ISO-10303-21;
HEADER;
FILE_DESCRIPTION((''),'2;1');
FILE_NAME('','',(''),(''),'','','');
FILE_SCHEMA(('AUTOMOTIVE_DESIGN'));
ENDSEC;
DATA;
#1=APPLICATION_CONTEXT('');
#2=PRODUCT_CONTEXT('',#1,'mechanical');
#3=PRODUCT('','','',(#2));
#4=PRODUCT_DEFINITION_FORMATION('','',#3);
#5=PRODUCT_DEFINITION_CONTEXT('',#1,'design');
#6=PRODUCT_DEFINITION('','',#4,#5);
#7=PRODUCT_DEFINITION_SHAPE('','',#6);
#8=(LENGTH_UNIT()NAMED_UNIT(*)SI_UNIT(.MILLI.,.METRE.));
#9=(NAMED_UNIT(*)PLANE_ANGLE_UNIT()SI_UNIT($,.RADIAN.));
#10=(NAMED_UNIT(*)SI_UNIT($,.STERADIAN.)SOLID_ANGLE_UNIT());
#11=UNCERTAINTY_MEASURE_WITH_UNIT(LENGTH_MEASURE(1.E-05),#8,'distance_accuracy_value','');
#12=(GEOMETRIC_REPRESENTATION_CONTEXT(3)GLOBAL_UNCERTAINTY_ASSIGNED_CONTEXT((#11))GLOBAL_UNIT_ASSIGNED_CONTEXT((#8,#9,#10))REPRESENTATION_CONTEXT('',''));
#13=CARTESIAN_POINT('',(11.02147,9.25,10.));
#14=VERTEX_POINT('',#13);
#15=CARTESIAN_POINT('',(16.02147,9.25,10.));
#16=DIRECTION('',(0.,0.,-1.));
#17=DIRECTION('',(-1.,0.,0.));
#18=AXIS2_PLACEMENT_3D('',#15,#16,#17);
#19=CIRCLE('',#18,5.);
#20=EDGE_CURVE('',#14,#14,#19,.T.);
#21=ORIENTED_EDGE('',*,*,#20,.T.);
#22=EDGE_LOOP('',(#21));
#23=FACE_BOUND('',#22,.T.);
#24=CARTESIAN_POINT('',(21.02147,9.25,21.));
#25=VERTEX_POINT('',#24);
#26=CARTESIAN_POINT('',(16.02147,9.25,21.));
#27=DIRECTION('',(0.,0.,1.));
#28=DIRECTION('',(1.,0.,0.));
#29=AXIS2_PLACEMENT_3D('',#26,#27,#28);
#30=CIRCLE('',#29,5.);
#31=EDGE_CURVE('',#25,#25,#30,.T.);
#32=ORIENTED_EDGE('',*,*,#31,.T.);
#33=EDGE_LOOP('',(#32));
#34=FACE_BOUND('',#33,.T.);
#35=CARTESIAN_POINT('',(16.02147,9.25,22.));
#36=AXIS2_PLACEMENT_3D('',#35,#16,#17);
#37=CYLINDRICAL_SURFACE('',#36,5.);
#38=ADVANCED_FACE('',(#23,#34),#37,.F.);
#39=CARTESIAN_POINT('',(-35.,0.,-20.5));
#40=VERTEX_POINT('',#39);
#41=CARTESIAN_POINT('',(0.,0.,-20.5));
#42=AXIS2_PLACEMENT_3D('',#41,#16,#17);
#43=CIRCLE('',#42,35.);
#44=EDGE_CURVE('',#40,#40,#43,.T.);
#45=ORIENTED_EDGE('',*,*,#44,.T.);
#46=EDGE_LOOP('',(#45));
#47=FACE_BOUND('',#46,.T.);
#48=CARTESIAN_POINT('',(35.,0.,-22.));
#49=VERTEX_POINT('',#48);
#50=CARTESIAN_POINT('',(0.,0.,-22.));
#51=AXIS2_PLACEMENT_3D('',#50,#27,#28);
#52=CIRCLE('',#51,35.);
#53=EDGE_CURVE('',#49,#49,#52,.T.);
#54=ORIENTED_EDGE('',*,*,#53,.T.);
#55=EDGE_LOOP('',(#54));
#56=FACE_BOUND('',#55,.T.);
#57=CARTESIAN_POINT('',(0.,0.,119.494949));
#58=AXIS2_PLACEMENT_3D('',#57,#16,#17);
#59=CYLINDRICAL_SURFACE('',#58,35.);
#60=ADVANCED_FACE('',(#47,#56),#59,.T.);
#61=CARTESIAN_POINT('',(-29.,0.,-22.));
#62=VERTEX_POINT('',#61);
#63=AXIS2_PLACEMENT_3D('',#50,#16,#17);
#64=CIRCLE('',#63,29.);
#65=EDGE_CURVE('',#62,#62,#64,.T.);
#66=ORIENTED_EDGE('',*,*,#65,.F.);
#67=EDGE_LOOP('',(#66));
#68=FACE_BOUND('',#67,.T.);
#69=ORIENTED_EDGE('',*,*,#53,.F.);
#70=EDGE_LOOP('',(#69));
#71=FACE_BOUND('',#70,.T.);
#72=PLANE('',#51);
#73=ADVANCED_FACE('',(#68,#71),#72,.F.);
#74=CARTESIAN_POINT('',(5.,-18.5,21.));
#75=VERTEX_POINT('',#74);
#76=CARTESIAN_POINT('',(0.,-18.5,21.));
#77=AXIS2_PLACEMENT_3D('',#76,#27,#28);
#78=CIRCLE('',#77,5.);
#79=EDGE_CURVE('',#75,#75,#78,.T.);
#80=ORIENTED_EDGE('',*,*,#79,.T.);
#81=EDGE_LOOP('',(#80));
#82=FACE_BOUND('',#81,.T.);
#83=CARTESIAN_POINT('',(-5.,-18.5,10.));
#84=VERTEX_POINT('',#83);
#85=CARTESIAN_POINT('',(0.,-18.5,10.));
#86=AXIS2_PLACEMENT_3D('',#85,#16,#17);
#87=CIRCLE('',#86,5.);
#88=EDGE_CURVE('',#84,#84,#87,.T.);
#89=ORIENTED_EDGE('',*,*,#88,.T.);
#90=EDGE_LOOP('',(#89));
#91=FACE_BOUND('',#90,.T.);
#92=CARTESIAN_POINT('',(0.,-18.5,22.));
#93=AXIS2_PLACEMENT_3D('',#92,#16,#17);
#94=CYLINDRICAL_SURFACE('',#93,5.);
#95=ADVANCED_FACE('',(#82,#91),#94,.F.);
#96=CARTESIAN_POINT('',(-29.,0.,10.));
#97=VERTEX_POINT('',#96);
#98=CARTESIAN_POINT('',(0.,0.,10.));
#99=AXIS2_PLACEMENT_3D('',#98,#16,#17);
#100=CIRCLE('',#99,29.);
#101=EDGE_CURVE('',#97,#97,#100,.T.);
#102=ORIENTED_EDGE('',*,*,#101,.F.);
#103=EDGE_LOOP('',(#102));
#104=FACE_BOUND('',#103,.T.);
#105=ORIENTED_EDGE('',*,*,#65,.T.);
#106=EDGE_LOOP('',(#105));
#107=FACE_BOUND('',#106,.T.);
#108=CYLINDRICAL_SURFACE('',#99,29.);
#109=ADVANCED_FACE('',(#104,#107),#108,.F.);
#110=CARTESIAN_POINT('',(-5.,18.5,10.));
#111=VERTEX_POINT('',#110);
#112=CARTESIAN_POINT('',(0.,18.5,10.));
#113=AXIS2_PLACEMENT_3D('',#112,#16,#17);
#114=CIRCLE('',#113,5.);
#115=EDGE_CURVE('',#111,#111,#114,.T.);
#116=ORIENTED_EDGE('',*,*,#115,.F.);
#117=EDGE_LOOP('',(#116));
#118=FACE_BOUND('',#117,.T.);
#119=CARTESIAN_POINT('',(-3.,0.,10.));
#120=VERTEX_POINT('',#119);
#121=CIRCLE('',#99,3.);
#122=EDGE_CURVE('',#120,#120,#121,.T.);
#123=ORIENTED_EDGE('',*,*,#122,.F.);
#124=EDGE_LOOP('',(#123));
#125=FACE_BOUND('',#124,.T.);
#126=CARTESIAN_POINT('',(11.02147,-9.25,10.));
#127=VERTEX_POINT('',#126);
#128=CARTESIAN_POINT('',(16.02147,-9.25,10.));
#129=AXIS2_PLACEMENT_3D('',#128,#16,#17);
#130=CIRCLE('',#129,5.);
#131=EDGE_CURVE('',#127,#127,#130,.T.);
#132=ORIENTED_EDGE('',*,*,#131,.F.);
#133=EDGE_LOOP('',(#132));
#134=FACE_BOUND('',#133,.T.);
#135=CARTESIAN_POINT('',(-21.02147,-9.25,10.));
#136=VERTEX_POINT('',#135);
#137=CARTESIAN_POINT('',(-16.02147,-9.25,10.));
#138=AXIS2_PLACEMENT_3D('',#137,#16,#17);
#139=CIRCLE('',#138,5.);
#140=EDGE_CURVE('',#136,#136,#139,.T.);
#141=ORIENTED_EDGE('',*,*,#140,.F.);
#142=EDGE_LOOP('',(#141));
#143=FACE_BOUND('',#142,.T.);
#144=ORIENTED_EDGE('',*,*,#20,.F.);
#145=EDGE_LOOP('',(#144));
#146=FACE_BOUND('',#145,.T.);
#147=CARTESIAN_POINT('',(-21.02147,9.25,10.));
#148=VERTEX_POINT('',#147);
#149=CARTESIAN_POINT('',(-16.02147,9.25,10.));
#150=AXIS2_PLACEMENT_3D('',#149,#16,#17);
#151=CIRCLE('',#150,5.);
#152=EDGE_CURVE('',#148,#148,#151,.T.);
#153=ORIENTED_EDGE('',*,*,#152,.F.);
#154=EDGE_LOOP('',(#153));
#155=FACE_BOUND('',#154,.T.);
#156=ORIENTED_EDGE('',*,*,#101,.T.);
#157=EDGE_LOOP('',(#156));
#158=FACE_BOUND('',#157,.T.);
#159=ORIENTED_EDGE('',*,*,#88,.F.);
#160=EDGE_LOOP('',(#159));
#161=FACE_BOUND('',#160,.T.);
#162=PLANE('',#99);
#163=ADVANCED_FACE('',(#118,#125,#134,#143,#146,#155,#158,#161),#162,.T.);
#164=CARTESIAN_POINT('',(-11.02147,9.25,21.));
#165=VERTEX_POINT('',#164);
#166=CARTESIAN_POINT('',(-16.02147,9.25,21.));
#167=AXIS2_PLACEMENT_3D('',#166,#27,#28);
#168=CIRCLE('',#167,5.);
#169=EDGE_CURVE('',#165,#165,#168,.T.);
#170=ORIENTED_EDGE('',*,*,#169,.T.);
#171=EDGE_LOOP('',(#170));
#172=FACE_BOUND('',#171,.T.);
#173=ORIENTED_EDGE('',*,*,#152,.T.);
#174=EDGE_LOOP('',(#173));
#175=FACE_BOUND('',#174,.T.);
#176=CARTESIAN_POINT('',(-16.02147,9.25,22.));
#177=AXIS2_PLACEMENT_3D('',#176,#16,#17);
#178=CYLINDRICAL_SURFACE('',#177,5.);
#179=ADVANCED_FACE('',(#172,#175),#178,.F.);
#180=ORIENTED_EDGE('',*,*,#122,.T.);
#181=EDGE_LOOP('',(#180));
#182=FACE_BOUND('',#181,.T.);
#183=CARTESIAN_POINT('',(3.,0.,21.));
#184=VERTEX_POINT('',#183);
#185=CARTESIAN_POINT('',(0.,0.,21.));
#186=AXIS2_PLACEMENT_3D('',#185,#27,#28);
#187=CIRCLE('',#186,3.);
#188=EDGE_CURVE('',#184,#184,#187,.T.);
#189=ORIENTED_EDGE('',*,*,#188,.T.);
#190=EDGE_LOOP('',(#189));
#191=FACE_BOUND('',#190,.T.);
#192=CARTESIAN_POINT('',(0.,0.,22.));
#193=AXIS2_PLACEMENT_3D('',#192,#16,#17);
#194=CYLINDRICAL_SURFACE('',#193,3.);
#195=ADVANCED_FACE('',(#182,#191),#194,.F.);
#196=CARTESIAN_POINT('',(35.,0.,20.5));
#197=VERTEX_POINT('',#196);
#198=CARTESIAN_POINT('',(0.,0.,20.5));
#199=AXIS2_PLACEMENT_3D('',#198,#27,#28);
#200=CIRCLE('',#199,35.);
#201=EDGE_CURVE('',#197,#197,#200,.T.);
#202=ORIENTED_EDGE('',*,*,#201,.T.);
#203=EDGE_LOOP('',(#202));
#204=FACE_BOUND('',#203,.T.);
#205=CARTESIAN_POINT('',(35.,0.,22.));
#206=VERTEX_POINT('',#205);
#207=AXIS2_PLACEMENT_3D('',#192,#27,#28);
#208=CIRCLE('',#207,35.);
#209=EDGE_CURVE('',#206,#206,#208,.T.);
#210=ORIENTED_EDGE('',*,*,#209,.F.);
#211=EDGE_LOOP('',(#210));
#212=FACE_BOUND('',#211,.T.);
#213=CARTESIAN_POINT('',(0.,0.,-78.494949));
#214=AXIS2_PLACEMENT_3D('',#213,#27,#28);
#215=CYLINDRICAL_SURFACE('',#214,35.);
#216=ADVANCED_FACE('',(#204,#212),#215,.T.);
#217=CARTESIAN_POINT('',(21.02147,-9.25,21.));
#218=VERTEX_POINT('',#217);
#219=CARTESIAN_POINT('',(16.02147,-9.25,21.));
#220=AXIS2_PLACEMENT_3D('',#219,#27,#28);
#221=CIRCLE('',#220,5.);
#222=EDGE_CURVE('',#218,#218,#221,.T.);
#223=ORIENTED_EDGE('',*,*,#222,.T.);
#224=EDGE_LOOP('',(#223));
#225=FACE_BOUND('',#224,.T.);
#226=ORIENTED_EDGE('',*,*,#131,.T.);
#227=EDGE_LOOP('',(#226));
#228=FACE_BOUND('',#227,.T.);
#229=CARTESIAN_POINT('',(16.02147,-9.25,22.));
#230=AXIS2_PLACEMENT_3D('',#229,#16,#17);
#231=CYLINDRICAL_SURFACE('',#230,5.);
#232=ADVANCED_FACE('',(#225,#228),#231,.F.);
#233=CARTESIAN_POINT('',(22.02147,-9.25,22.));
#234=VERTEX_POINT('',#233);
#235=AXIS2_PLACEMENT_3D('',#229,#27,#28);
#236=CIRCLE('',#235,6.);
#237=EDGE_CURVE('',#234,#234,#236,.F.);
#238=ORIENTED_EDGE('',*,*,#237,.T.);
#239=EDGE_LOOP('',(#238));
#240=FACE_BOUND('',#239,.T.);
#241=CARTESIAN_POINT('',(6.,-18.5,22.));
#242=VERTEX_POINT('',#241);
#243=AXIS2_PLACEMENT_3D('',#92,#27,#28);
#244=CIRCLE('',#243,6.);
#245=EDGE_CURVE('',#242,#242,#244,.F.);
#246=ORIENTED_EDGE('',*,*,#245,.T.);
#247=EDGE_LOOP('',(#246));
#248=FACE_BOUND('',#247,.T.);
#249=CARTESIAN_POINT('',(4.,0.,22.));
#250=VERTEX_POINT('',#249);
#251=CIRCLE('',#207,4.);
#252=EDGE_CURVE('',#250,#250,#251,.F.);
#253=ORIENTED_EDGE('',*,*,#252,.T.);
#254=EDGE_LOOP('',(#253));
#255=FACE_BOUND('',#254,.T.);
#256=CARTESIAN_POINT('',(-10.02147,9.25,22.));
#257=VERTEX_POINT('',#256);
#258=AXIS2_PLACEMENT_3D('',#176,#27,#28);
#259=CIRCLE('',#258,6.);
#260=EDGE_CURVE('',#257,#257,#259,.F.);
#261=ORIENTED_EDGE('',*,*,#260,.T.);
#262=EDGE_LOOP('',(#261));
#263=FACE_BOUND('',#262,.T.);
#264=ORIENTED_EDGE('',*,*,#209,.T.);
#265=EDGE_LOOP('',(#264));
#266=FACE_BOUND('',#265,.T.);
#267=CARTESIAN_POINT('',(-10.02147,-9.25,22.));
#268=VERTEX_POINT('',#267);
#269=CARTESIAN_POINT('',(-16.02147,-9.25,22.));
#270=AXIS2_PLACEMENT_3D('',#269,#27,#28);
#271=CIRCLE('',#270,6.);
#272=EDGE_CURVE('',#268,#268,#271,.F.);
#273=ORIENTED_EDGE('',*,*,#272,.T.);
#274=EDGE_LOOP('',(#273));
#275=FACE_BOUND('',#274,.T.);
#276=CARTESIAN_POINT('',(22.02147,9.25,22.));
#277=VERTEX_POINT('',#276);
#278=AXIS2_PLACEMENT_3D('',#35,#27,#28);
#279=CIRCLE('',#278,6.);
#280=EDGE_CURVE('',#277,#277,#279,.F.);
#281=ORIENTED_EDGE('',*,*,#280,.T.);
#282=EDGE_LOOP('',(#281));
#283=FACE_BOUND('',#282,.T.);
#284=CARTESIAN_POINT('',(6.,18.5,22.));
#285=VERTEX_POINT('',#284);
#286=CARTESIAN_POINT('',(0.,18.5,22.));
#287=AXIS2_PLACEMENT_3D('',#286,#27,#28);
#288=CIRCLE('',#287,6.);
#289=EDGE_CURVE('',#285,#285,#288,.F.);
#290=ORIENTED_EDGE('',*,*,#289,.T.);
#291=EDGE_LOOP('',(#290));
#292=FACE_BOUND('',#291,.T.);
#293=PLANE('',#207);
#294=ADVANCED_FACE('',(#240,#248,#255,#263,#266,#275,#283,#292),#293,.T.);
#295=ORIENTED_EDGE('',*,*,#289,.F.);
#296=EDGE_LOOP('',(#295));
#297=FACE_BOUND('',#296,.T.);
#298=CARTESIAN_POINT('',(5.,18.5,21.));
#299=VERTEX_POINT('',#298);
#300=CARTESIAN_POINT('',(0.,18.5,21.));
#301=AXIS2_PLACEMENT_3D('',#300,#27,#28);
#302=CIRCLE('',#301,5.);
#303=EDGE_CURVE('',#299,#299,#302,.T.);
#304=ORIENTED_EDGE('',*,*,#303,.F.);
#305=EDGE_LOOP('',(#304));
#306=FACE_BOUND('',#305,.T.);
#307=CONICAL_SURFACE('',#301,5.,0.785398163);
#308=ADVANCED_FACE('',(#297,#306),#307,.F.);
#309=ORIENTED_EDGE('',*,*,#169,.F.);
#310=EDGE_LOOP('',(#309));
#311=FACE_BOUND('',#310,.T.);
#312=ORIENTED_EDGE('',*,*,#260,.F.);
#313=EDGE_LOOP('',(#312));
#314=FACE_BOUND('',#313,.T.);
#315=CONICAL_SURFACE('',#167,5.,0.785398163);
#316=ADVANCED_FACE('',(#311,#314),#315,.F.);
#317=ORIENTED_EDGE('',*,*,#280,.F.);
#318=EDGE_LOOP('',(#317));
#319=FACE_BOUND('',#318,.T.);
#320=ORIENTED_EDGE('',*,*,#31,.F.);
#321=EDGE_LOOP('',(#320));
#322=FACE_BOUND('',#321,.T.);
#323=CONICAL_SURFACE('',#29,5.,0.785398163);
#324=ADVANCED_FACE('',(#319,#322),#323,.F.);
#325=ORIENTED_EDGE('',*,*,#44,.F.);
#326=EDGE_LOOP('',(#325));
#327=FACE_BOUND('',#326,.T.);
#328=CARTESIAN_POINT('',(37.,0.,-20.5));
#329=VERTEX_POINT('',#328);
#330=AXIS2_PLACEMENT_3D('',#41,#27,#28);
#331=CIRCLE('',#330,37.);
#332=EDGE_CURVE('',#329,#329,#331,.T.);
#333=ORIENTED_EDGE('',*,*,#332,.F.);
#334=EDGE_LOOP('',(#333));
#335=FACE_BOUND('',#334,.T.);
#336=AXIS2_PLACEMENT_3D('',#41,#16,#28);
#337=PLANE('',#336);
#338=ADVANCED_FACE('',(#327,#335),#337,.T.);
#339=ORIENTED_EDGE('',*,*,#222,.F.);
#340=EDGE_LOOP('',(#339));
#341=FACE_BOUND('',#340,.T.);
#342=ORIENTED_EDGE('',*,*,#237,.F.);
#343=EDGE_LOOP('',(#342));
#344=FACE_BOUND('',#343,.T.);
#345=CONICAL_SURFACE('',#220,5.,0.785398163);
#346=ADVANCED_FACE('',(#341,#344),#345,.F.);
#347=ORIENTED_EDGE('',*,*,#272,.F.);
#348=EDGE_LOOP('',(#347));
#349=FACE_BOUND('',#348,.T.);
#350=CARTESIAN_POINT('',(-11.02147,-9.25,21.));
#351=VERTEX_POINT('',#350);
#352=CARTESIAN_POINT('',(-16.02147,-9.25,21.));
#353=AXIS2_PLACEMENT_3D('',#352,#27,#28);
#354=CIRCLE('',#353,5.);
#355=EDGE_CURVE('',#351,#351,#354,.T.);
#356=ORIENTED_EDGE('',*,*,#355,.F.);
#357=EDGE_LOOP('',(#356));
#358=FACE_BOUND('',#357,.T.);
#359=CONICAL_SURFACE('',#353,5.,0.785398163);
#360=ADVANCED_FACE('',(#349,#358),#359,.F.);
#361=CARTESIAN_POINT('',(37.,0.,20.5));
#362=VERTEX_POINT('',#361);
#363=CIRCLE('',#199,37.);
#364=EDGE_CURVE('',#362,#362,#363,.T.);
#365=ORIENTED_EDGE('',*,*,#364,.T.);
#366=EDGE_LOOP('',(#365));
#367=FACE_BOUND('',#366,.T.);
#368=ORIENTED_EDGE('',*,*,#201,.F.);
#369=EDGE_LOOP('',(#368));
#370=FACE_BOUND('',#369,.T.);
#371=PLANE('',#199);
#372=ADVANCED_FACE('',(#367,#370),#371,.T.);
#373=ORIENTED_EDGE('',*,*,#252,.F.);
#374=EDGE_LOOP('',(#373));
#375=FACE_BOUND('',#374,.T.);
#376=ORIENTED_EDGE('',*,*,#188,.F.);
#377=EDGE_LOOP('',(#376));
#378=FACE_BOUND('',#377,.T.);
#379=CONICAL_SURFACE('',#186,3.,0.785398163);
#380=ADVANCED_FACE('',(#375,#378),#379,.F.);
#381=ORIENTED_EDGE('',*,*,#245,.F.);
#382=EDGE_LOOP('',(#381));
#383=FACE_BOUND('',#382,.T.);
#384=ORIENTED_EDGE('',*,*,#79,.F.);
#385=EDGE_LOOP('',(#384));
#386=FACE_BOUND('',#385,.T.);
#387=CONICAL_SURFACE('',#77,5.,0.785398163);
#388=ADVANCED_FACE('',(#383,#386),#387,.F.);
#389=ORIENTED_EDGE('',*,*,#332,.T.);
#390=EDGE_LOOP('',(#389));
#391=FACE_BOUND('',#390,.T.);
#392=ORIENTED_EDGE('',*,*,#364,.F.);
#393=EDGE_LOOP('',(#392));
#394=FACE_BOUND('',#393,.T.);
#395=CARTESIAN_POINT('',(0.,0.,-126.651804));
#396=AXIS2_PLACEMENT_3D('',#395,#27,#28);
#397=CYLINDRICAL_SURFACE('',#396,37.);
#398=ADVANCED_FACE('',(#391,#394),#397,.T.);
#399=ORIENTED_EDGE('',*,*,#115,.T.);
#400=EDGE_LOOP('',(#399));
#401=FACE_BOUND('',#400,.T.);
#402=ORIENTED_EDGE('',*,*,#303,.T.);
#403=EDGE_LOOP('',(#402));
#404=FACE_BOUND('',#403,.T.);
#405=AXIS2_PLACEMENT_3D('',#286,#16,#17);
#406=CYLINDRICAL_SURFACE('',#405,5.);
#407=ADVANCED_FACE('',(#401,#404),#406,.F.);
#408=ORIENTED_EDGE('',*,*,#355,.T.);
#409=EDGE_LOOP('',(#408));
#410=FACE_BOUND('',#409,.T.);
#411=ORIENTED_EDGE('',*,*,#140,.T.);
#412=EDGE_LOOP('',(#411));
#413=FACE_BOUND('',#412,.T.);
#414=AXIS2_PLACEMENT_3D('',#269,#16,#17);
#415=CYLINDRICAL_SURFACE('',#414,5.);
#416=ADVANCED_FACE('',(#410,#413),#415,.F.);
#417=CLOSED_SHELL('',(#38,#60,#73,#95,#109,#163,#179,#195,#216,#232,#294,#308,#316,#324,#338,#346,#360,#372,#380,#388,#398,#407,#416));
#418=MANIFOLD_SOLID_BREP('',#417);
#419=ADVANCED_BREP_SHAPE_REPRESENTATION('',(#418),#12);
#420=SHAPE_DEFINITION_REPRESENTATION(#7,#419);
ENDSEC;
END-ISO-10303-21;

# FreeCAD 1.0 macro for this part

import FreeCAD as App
import Part
import Sketcher

V = App.Vector
Q = App.Units.Quantity


def edges_at(feature, points):
    """Names of the edges that pass closest to the given points."""
    edges = feature.Shape.Edges
    near = lambda p: min(range(len(edges)), key=lambda i: edges[i].distToShape(Part.Vertex(*p))[0])
    return sorted({f"Edge{near(p) + 1}" for p in points})

doc = App.newDocument("Part")
body = doc.addObject("PartDesign::Body", "Body")

sketch1 = body.newObject("Sketcher::SketchObject", "Sketch")
sketch1.AttachmentSupport = (doc.getObject("XY_Plane"), [""])
sketch1.MapMode = "FlatFace"
sketch1.addGeometry([
    Part.Circle(V(0, 0, 0), V(0, 0, 1), 34),
    Part.Circle(V(-16, -9.2, 0), V(0, 0, 1), 5),
    Part.Circle(V(0, -18.5, 0), V(0, 0, 1), 5),
    Part.Circle(V(16, -9.2, 0), V(0, 0, 1), 5),
    Part.Circle(V(-16, 9.2, 0), V(0, 0, 1), 5),
    Part.Circle(V(0, 0, 0), V(0, 0, 1), 3),
    Part.Circle(V(16, 9.2, 0), V(0, 0, 1), 5),
    Part.Circle(V(0, 18.5, 0), V(0, 0, 1), 5),
], False)
sketch1.addConstraint([
    Sketcher.Constraint("Coincident", 0, 3, -1, 1),
    Sketcher.Constraint("Coincident", 5, 3, -1, 1),
    Sketcher.Constraint("Equal", 1, 2),
    Sketcher.Constraint("Equal", 2, 3),
    Sketcher.Constraint("Equal", 3, 4),
    Sketcher.Constraint("Equal", 4, 6),
    Sketcher.Constraint("Equal", 6, 7),
    Sketcher.Constraint("Symmetric", 3, 3, 4, 3, -1, 1),
    Sketcher.Constraint("Symmetric", 1, 3, 6, 3, -1, 1),
    Sketcher.Constraint("Symmetric", 2, 3, 7, 3, -1, 1),
    Sketcher.Constraint("Symmetric", 1, 3, 3, 3, -2),
    Sketcher.Constraint("PointOnObject", 2, 3, -2),
    Sketcher.Constraint("Diameter", 0, Q("68 mm")),
    Sketcher.Constraint("Diameter", 1, Q("10 mm")),
    Sketcher.Constraint("Diameter", 5, Q("6 mm")),
    Sketcher.Constraint("DistanceY", 2, 3, -1, 1, Q("18.5 mm")),
    Sketcher.Constraint("DistanceY", 1, 3, 4, 3, Q("18.5 mm")),
    Sketcher.Constraint("DistanceX", 1, 3, -1, 1, Q("16.02147 mm")),
])
pad1 = body.newObject("PartDesign::Pad", "Pad")
pad1.Profile = sketch1
pad1.Length = 44
pad1.Midplane = True

sketch2 = body.newObject("Sketcher::SketchObject", "Sketch001")
sketch2.AttachmentSupport = (doc.getObject("XY_Plane"), [""])
sketch2.MapMode = "FlatFace"
sketch2.AttachmentOffset = App.Placement(V(0, 0, 22), App.Rotation())
sketch2.addGeometry([
    Part.Circle(V(0, 0, 0), V(0, 0, 1), 37),
    Part.Circle(V(0, 0, 0), V(0, 0, 1), 34),
], False)
sketch2.addConstraint([
    Sketcher.Constraint("Coincident", 0, 3, -1, 1),
    Sketcher.Constraint("Coincident", 1, 3, -1, 1),
    Sketcher.Constraint("Diameter", 0, Q("74 mm")),
    Sketcher.Constraint("Diameter", 1, Q("68 mm")),
])
pad2 = body.newObject("PartDesign::Pad", "Pad001")
pad2.Profile = sketch2
pad2.Length = 44
pad2.Reversed = True

sketch3 = body.newObject("Sketcher::SketchObject", "Sketch002")
sketch3.AttachmentSupport = (doc.getObject("XY_Plane"), [""])
sketch3.MapMode = "FlatFace"
sketch3.AttachmentOffset = App.Placement(V(0, 0, 22), App.Rotation())
sketch3.addGeometry([
    Part.Circle(V(0, 0, 0), V(0, 0, 1), 37),
    Part.Circle(V(0, 0, 0), V(0, 0, 1), 34),
], False)
sketch3.addConstraint([
    Sketcher.Constraint("Coincident", 0, 3, -1, 1),
    Sketcher.Constraint("Coincident", 1, 3, -1, 1),
    Sketcher.Constraint("Diameter", 0, Q("74 mm")),
    Sketcher.Constraint("Diameter", 1, Q("68 mm")),
])
pocket1 = body.newObject("PartDesign::Pocket", "Pocket")
pocket1.Profile = sketch3
pocket1.Length = 1.5
doc.recompute()

mirrored = body.newObject("PartDesign::Mirrored", "Mirrored")
mirrored.Originals = [pocket1]
mirrored.MirrorPlane = (doc.getObject("XY_Plane"), [""])
body.Tip = mirrored

sketch4 = body.newObject("Sketcher::SketchObject", "Sketch003")
sketch4.AttachmentSupport = (doc.getObject("XY_Plane"), [""])
sketch4.MapMode = "FlatFace"
sketch4.AttachmentOffset = App.Placement(V(0, 0, 22), App.Rotation())
sketch4.addGeometry([
    Part.Circle(V(0, 0, 0), V(0, 0, 1), 35),
    Part.Circle(V(0, 0, 0), V(0, 0, 1), 34),
], False)
sketch4.addConstraint([
    Sketcher.Constraint("Coincident", 0, 3, -1, 1),
    Sketcher.Constraint("Coincident", 1, 3, -1, 1),
    Sketcher.Constraint("Diameter", 0, Q("70 mm")),
    Sketcher.Constraint("Diameter", 1, Q("68 mm")),
])
pad3 = body.newObject("PartDesign::Pad", "Pad002")
pad3.Profile = sketch4
pad3.Length = 1.5
pad3.Reversed = True
doc.recompute()

mirrored2 = body.newObject("PartDesign::Mirrored", "Mirrored001")
mirrored2.Originals = [pad3]
mirrored2.MirrorPlane = (doc.getObject("XY_Plane"), [""])
body.Tip = mirrored2
doc.recompute()

chamfer = body.newObject("PartDesign::Chamfer", "Chamfer")
chamfer.Base = (mirrored2, edges_at(mirrored2, [
    (11.021, 9.25, -22),
    (11.021, 9.25, 22),
    (11.021, -9.25, -22),
    (11.021, -9.25, 22),
    (-5, -18.5, -22),
    (-5, -18.5, 22),
    (-21.021, -9.25, -22),
    (-21.021, -9.25, 22),
    (-21.021, 9.25, -22),
    (-21.021, 9.25, 22),
    (-3, 0, -22),
    (-3, 0, 22),
    (-5, 18.5, -22),
    (-5, 18.5, 22),
]))
chamfer.Size = 1

sketch5 = body.newObject("Sketcher::SketchObject", "Sketch004")
sketch5.AttachmentSupport = (doc.getObject("XY_Plane"), [""])
sketch5.MapMode = "FlatFace"
sketch5.AttachmentOffset = App.Placement(V(0, 0, -22), App.Rotation())
sketch5.addGeometry(Part.Circle(V(0, 0, 0), V(0, 0, 1), 29), False)
sketch5.addConstraint([
    Sketcher.Constraint("Coincident", 0, 3, -1, 1),
    Sketcher.Constraint("Diameter", 0, Q("58 mm")),
])
pocket2 = body.newObject("PartDesign::Pocket", "Pocket001")
pocket2.Profile = sketch5
pocket2.Length = 32
pocket2.Reversed = True

doc.recompute()
